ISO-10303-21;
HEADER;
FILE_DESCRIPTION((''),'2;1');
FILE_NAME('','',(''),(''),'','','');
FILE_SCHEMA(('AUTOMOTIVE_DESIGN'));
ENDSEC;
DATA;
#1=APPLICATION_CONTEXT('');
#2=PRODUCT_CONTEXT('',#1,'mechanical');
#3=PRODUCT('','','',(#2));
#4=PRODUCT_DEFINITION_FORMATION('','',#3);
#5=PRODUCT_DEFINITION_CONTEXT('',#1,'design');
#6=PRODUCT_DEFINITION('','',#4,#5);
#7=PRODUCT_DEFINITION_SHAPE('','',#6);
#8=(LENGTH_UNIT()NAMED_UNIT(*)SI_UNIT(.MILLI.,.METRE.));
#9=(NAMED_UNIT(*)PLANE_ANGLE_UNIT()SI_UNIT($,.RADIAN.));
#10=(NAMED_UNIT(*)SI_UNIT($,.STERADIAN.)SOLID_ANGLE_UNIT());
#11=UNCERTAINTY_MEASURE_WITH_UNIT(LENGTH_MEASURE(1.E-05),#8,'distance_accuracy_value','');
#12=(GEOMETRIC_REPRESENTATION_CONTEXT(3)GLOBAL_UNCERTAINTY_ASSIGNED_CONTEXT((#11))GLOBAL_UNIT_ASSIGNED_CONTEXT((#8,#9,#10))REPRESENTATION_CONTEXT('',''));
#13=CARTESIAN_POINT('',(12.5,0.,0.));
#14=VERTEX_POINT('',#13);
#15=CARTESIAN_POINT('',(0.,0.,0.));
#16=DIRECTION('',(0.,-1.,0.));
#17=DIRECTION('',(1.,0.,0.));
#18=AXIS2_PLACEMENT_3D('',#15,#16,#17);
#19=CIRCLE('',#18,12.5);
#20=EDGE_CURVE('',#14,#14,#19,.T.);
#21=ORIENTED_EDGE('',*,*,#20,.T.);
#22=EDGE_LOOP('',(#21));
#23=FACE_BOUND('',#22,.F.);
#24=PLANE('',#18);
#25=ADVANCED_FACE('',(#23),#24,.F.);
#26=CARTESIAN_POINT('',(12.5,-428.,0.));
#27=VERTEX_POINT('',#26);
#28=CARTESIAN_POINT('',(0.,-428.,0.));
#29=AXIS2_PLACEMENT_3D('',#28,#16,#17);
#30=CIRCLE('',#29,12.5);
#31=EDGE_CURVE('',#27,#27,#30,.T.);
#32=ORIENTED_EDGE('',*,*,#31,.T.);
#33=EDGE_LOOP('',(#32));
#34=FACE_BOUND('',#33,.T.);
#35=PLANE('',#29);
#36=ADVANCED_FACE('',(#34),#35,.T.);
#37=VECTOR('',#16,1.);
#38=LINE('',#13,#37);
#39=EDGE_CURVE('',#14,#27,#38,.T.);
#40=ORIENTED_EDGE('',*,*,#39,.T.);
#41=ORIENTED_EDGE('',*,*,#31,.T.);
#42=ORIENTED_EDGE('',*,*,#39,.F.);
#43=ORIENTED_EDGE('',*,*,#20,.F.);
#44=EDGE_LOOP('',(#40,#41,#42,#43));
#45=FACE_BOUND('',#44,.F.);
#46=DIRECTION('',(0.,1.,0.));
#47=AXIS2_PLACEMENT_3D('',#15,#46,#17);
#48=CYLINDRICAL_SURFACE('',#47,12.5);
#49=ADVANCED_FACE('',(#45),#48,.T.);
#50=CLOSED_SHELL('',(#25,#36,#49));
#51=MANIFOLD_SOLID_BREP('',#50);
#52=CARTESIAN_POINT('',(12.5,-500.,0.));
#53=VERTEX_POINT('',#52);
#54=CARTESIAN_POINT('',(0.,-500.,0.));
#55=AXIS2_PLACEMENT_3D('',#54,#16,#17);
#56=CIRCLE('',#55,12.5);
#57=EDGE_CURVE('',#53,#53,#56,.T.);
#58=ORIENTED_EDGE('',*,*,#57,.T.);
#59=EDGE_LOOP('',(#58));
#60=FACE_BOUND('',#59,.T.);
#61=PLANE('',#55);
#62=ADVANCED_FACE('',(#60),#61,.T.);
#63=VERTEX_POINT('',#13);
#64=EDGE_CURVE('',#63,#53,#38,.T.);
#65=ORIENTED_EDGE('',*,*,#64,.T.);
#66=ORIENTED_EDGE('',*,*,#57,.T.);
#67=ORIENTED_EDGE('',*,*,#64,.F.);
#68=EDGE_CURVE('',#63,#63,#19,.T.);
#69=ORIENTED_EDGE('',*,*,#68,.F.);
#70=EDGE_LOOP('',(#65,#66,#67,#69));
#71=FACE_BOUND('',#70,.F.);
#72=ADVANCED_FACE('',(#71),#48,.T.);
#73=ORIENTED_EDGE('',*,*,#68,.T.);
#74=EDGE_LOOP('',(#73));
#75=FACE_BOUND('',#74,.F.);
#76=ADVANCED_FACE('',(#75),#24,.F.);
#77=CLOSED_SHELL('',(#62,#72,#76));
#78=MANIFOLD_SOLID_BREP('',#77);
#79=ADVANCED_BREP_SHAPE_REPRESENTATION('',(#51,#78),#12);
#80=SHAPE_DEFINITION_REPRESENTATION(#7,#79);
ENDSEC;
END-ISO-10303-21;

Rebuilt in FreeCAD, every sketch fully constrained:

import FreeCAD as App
import Part
import Sketcher
Q = App.Units.Quantity

doc = App.newDocument("Part")
body = doc.addObject("PartDesign::Body", "Body")

# Sketch on XZ plane
sketch1 = doc.addObject("Sketcher::SketchObject", "Sketch")
body.addObject(sketch1)
sketch1.AttachmentSupport = (doc.XZ_Plane, [""])
sketch1.MapMode = "FlatFace"
sketch1.addGeometry(Part.Circle(App.Vector(0, 0, 0), App.Vector(0, 0, 1), 12), False)
sketch1.addConstraint(Sketcher.Constraint("Coincident", 0, 3, -1, 1))
sketch1.addConstraint(Sketcher.Constraint("Diameter", 0, Q("25 mm")))
pad1 = doc.addObject("PartDesign::Pad", "Pad")
body.addObject(pad1)
pad1.Profile = sketch1
pad1.Length = 500
body2 = doc.addObject("PartDesign::Body", "Body001")

# Sketch on XZ plane
sketch2 = doc.addObject("Sketcher::SketchObject", "Sketch001")
body2.addObject(sketch2)
sketch2.AttachmentSupport = (doc.getObject("XZ_Plane001"), [""])
sketch2.MapMode = "FlatFace"
sketch2.addGeometry(Part.Circle(App.Vector(0, 0, 0), App.Vector(0, 0, 1), 12), False)
sketch2.addConstraint(Sketcher.Constraint("Coincident", 0, 3, -1, 1))
sketch2.addConstraint(Sketcher.Constraint("Diameter", 0, Q("25 mm")))
pad2 = doc.addObject("PartDesign::Pad", "Pad001")
body2.addObject(pad2)
pad2.Profile = sketch2
pad2.Length = 428

doc.recompute()
